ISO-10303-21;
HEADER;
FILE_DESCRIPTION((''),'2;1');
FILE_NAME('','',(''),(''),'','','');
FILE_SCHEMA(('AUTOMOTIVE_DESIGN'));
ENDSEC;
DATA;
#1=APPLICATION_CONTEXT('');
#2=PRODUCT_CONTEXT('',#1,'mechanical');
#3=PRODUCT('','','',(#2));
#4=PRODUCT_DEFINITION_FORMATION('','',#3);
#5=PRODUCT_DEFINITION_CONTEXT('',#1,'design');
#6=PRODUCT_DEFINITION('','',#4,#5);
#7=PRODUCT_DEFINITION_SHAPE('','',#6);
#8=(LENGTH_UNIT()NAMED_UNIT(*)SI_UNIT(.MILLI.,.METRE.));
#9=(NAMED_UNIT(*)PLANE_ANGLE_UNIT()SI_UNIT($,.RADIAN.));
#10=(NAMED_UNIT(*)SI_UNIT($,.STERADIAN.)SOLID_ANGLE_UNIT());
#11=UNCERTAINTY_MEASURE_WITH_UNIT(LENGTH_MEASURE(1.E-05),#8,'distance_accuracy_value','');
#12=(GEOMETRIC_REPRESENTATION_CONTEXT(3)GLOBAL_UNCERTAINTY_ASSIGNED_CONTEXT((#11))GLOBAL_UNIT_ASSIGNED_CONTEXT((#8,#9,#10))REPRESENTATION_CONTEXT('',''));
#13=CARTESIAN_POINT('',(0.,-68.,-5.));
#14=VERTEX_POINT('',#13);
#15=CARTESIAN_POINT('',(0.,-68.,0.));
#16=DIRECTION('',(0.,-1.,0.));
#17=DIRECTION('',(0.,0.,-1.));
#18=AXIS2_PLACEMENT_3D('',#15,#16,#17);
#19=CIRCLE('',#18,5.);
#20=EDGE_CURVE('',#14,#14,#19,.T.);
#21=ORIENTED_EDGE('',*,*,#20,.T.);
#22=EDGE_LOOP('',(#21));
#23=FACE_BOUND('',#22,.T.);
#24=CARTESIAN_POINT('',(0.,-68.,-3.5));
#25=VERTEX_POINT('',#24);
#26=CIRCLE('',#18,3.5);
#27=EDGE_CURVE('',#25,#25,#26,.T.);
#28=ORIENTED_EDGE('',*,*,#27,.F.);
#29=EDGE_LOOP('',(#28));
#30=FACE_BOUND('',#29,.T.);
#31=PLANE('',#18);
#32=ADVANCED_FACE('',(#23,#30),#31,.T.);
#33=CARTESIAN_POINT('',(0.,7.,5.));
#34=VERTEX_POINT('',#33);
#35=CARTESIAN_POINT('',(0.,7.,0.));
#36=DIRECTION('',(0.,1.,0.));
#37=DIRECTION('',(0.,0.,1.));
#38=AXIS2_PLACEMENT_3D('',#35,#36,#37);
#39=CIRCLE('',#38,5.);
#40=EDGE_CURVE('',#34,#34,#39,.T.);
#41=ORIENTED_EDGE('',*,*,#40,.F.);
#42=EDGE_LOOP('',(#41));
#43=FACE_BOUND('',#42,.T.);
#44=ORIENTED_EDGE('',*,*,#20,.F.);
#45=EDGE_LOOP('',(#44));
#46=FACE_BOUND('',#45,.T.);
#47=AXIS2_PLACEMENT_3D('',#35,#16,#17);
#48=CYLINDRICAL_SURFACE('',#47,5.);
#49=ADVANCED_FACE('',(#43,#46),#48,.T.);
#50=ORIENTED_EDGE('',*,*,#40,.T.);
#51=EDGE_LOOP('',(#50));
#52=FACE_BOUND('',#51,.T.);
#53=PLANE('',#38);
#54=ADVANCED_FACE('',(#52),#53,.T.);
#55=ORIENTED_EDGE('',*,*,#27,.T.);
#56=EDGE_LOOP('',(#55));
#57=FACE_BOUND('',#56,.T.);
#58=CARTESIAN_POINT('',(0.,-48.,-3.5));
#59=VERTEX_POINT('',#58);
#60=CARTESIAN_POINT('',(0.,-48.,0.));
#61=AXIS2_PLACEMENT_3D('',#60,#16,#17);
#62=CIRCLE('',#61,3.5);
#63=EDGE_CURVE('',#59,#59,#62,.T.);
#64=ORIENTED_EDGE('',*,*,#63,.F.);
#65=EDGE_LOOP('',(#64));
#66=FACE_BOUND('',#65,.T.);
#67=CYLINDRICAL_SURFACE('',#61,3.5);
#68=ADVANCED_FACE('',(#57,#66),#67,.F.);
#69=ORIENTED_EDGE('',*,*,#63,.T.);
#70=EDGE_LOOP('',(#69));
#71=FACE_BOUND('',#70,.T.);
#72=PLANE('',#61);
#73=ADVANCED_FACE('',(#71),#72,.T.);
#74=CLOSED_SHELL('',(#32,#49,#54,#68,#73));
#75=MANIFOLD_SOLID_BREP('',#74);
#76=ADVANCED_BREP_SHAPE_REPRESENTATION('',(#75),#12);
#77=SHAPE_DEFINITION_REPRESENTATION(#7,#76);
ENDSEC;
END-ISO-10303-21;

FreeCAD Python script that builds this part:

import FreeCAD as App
import Part
import Sketcher
from FreeCAD import Vector
Q = App.Units.Quantity

doc = App.newDocument("Part")
body = doc.addObject("PartDesign::Body", "Body")

sketch1 = body.newObject("Sketcher::SketchObject", "Sketch")
sketch1.AttachmentSupport = (doc.getObject("XZ_Plane"), [""])
sketch1.MapMode = "FlatFace"
sketch1.addGeometry(Part.Circle(Vector(0, 0, 0), Vector(0, 0, 1), 5), False)
sketch1.addConstraint([
    Sketcher.Constraint("Coincident", 0, 3, -1, 1),
    Sketcher.Constraint("Diameter", 0, Q("10 mm")),
])
pad1 = body.newObject("PartDesign::Pad", "Pad")
pad1.Profile = sketch1
pad1.Length = 7
pad1.Reversed = True

sketch2 = body.newObject("Sketcher::SketchObject", "Sketch001")
sketch2.AttachmentSupport = (doc.getObject("XZ_Plane"), [""])
sketch2.MapMode = "FlatFace"
sketch2.AttachmentOffset = App.Placement(Vector(0, 0, 68), App.Rotation())
sketch2.addGeometry(Part.Circle(Vector(0, 0, 0), Vector(0, 0, 1), 5), False)
sketch2.addConstraint([
    Sketcher.Constraint("Coincident", 0, 3, -1, 1),
    Sketcher.Constraint("Diameter", 0, Q("10 mm")),
])
pad2 = body.newObject("PartDesign::Pad", "Pad001")
pad2.Profile = sketch2
pad2.Length = 68
pad2.Reversed = True

sketch3 = body.newObject("Sketcher::SketchObject", "Sketch002")
sketch3.AttachmentSupport = (doc.getObject("XZ_Plane"), [""])
sketch3.MapMode = "FlatFace"
sketch3.AttachmentOffset = App.Placement(Vector(0, 0, 68), App.Rotation())
sketch3.addGeometry(Part.Circle(Vector(0, 0, 0), Vector(0, 0, 1), 3.5), False)
sketch3.addConstraint([
    Sketcher.Constraint("Coincident", 0, 3, -1, 1),
    Sketcher.Constraint("Diameter", 0, Q("7 mm")),
])
pocket1 = body.newObject("PartDesign::Pocket", "Pocket")
pocket1.Profile = sketch3
pocket1.Length = 20

doc.recompute()
